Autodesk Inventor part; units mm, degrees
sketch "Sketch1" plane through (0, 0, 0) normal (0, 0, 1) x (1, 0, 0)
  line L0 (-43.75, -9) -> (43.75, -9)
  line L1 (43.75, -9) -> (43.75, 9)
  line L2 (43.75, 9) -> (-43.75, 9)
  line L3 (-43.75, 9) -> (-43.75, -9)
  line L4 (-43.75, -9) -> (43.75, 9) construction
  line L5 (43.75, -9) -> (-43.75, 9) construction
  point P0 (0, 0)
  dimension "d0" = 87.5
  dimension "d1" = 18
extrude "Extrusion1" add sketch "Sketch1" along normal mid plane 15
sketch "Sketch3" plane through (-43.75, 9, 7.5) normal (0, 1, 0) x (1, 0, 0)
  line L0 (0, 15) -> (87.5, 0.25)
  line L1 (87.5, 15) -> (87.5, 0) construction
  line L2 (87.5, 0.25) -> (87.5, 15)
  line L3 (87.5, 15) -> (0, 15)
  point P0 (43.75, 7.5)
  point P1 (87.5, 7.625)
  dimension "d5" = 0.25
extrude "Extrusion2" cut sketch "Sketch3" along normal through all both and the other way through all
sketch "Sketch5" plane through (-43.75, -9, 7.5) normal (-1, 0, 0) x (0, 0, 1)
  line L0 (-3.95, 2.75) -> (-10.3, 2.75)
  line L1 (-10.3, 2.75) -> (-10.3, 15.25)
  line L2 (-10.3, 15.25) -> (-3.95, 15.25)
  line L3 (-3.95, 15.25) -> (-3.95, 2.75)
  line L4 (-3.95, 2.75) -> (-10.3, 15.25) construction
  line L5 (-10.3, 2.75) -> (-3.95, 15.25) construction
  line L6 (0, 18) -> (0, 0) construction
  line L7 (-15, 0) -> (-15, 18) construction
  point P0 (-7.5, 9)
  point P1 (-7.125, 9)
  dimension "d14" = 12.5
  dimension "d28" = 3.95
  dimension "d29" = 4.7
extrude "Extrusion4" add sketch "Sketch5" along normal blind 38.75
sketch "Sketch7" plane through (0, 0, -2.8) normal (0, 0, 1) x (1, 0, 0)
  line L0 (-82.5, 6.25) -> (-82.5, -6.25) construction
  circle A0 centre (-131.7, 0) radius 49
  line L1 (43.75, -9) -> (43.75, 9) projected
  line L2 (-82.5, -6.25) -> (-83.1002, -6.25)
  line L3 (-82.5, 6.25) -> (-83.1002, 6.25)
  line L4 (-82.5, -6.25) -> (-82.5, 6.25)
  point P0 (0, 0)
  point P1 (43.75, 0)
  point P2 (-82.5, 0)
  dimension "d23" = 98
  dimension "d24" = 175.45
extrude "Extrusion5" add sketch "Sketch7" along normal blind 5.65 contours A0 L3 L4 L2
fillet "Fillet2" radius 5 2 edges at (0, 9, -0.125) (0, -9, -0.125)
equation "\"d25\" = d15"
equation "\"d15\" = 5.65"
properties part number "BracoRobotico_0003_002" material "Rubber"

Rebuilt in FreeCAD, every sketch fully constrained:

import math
import FreeCAD as App
import Part
import Sketcher
from FreeCAD import Vector
Q = App.Units.Quantity


def edges_at(feature, points):
    """Names of the edges that pass closest to the given points."""
    edges = feature.Shape.Edges
    near = lambda p: min(range(len(edges)), key=lambda i: edges[i].distToShape(Part.Vertex(*p))[0])
    return sorted({f"Edge{near(p) + 1}" for p in points})


def add_polygon(sketch, points):
    """Adds a closed chain of lines whose ends are joined by coincident constraints."""
    first, n = sketch.GeometryCount, len(points)
    for a, b in zip(points, points[1:] + points[:1]):
        sketch.addGeometry(Part.LineSegment(App.Vector(*a, 0), App.Vector(*b, 0)), False)
    for i in range(n):
        sketch.addConstraint(Sketcher.Constraint("Coincident", first + i, 2, first + (i + 1) % n, 1))

doc = App.newDocument("Part")
body = doc.addObject("PartDesign::Body", "Body")

sketch1 = doc.addObject("Sketcher::SketchObject", "Sketch")
body.addObject(sketch1)
sketch1.AttachmentSupport = (doc.XY_Plane, [""])
sketch1.MapMode = "FlatFace"
add_polygon(sketch1, [(-44, 9), (-44, -9), (44, -9), (44, 9)])
sketch1.addConstraint([
    Sketcher.Constraint("Vertical", 0),
    Sketcher.Constraint("Horizontal", 1),
    Sketcher.Constraint("Vertical", 2),
    Sketcher.Constraint("Horizontal", 3),
    Sketcher.Constraint("Symmetric", 0, 2, 2, 2, -1, 1),
    Sketcher.Constraint("DistanceY", 0, 2, 0, 1, Q("18 mm")),
    Sketcher.Constraint("DistanceX", 1, 1, 1, 2, Q("87.5 mm")),
])
pad1 = doc.addObject("PartDesign::Pad", "Pad")
body.addObject(pad1)
pad1.Profile = sketch1
pad1.Length = 15
pad1.Midplane = True

sketch2 = doc.addObject("Sketcher::SketchObject", "Sketch001")
body.addObject(sketch2)
sketch2.AttachmentSupport = (doc.XZ_Plane, [""])
sketch2.MapMode = "FlatFace"
sketch2.AttachmentOffset = App.Placement(Vector(0, 0, -9), App.Rotation())
add_polygon(sketch2, [(44, -8), (-44, -8), (44, 7)])
sketch2.addConstraint([
    Sketcher.Constraint("Horizontal", 0),
    Sketcher.Constraint("Vertical", 2),
    Sketcher.Constraint("DistanceX", 0, 2, 0, 1, Q("87.5 mm")),
    Sketcher.Constraint("DistanceY", 2, 2, 2, 1, Q("14.75 mm")),
    Sketcher.Constraint("DistanceY", 0, 2, -1, 1, Q("7.5 mm")),
    Sketcher.Constraint("DistanceX", 0, 2, -1, 1, Q("43.75 mm")),
])
pocket1 = doc.addObject("PartDesign::Pocket", "Pocket")
body.addObject(pocket1)
pocket1.Profile = sketch2
pocket1.Type = "ThroughAll"
pocket1.Midplane = True

sketch3 = doc.addObject("Sketcher::SketchObject", "Sketch002")
body.addObject(sketch3)
sketch3.AttachmentSupport = (doc.YZ_Plane, [""])
sketch3.MapMode = "FlatFace"
sketch3.AttachmentOffset = App.Placement(Vector(0, 0, -43.75), App.Rotation())
add_polygon(sketch3, [(-6, -3), (-6, 4), (6, 4), (6, -3)])
sketch3.addConstraint([
    Sketcher.Constraint("Vertical", 0),
    Sketcher.Constraint("Horizontal", 1),
    Sketcher.Constraint("Vertical", 2),
    Sketcher.Constraint("Horizontal", 3),
    Sketcher.Constraint("DistanceX", 1, 1, 1, 2, Q("12.5 mm")),
    Sketcher.Constraint("DistanceY", 0, 1, 0, 2, Q("6.35 mm")),
    Sketcher.Constraint("DistanceY", 2, 2, -1, 1, Q("2.8 mm")),
    Sketcher.Constraint("DistanceX", 0, 2, -1, 1, Q("6.25 mm")),
])
pad2 = doc.addObject("PartDesign::Pad", "Pad001")
body.addObject(pad2)
pad2.Profile = sketch3
pad2.Length = 38.75
pad2.Reversed = True

sketch4 = doc.addObject("Sketcher::SketchObject", "Sketch003")
body.addObject(sketch4)
sketch4.AttachmentSupport = (doc.XY_Plane, [""])
sketch4.MapMode = "FlatFace"
sketch4.AttachmentOffset = App.Placement(Vector(0, 0, -2.8), App.Rotation())
sketch4.addGeometry([
    Part.ArcOfCircle(Part.Circle(Vector(-131.7, 0, 0), Vector(0, 0, 1), 49), math.radians(-7.33), math.radians(7.33)),
    Part.LineSegment(Vector(-83.1, -6.2, 0), Vector(-82.5, -6.2, 0)),
    Part.LineSegment(Vector(-82.5, -6.2, 0), Vector(-82.5, 6.2, 0)),
    Part.LineSegment(Vector(-82.5, 6.2, 0), Vector(-83.1, 6.2, 0)),
], False)
sketch4.addConstraint([
    Sketcher.Constraint("Coincident", 0, 1, 1, 1),
    Sketcher.Constraint("Coincident", 1, 2, 2, 1),
    Sketcher.Constraint("Coincident", 2, 2, 3, 1),
    Sketcher.Constraint("Coincident", 3, 2, 0, 2),
    Sketcher.Constraint("Horizontal", 1),
    Sketcher.Constraint("Vertical", 2),
    Sketcher.Constraint("Horizontal", 3),
    Sketcher.Constraint("Symmetric", 0, 1, 3, 2, -1),
    Sketcher.Constraint("Radius", 0, Q("49 mm")),
    Sketcher.Constraint("DistanceY", 2, 1, 2, 2, Q("12.5 mm")),
    Sketcher.Constraint("DistanceX", 0, 3, -1, 1, Q("131.7 mm")),
    Sketcher.Constraint("DistanceX", 1, 2, -1, 1, Q("82.5 mm")),
])
pad3 = doc.addObject("PartDesign::Pad", "Pad002")
body.addObject(pad3)
pad3.Profile = sketch4
pad3.Length = 5.65
doc.recompute()

fillet = doc.addObject("PartDesign::Fillet", "Fillet")
body.addObject(fillet)
fillet.Base = (pad3, edges_at(pad3, [(0, 9, -0.125), (0, -9, -0.125)]))
fillet.Radius = 5

doc.recompute()
